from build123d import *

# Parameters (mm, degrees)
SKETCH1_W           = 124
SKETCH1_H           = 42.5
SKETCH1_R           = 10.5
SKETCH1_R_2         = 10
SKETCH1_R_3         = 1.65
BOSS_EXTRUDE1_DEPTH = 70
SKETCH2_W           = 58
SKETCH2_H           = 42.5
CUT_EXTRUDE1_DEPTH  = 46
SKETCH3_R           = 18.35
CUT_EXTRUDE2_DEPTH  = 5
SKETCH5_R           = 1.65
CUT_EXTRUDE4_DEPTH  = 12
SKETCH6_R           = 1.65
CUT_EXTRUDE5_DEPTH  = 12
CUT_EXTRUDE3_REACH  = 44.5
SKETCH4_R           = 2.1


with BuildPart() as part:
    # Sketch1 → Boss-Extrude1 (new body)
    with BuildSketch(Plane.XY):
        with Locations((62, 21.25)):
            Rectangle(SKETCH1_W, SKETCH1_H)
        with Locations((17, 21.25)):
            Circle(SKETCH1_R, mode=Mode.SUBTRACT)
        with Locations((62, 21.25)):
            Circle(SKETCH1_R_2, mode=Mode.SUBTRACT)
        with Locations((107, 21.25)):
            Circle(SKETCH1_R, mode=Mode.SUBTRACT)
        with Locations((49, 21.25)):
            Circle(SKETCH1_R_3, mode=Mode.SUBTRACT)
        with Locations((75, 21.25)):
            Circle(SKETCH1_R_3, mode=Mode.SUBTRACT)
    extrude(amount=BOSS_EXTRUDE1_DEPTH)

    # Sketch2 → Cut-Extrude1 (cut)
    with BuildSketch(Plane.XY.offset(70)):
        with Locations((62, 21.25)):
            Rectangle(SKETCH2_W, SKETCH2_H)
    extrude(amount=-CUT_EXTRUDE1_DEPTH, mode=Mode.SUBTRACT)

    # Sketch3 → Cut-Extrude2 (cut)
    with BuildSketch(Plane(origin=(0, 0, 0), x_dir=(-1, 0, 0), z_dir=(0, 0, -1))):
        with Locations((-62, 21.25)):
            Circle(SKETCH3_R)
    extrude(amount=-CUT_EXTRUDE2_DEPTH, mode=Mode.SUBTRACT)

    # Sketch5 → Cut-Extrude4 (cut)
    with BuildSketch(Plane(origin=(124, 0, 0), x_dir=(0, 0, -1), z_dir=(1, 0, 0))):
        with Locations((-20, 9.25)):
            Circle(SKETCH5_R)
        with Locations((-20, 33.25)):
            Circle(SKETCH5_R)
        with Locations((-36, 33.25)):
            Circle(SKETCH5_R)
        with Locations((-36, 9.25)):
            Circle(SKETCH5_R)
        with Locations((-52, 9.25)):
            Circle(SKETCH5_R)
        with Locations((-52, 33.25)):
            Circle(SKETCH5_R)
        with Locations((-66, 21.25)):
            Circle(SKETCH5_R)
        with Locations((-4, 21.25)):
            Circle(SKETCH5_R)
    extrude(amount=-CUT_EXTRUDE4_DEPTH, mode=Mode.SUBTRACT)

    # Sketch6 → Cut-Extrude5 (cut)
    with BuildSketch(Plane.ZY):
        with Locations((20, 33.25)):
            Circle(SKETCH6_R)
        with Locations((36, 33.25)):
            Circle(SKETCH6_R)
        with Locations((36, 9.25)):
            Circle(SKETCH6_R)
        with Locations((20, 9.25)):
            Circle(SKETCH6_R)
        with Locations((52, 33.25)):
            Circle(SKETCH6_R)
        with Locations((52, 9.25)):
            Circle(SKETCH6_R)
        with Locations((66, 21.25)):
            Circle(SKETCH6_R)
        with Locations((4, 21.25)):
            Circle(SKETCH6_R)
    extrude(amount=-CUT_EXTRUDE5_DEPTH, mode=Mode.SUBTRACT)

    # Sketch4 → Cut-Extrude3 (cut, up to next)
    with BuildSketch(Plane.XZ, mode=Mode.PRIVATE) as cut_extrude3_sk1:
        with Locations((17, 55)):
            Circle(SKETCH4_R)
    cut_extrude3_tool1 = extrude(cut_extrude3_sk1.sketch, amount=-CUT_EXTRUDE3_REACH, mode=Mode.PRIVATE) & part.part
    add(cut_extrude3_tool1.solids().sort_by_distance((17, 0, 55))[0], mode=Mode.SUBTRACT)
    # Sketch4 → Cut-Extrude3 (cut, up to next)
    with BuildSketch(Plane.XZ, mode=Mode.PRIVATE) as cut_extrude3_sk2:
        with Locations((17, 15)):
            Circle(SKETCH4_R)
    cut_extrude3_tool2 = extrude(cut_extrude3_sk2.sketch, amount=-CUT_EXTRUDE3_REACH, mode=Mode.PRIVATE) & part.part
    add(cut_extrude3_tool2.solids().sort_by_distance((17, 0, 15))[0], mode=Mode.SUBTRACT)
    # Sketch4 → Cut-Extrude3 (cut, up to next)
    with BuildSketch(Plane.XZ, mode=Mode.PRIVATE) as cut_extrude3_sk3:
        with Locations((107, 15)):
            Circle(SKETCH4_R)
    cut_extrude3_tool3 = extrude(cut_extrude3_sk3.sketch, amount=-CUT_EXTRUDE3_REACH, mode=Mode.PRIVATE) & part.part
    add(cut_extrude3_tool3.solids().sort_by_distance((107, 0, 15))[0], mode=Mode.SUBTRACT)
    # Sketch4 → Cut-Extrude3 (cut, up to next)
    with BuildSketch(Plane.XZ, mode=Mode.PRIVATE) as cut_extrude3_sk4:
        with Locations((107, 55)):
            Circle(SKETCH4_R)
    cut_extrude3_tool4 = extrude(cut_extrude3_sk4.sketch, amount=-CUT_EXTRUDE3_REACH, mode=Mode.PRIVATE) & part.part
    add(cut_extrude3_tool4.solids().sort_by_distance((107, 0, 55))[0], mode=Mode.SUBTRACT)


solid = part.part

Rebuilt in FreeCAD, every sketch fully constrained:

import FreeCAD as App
import Part
import Sketcher
from FreeCAD import Vector

doc = App.newDocument("Part")
body = doc.addObject("PartDesign::Body", "Body")

sketch1 = body.newObject("Sketcher::SketchObject", "Sketch")
sketch1.AttachmentSupport = (doc.getObject("XY_Plane"), [""])
sketch1.MapMode = "FlatFace"
sketch1.addGeometry([
    Part.LineSegment(Vector(0, 42.5, 0), Vector(0, 0, 0)),
    Part.LineSegment(Vector(0, 0, 0), Vector(124, 0, 0)),
    Part.LineSegment(Vector(124, 0, 0), Vector(124, 42.5, 0)),
    Part.LineSegment(Vector(124, 42.5, 0), Vector(0, 42.5, 0)),
    Part.Circle(Vector(17, 21.2, 0), Vector(0, 0, 1), 10.5),
    Part.Circle(Vector(49, 21.2, 0), Vector(0, 0, 1), 1.6),
    Part.Circle(Vector(62, 21.2, 0), Vector(0, 0, 1), 10),
    Part.Circle(Vector(75, 21.2, 0), Vector(0, 0, 1), 1.6),
    Part.Circle(Vector(107, 21.2, 0), Vector(0, 0, 1), 10.5),
], False)
sketch1.addConstraint([
    Sketcher.Constraint("Coincident", 0, 2, 1, 1),
    Sketcher.Constraint("Coincident", 1, 2, 2, 1),
    Sketcher.Constraint("Coincident", 2, 2, 3, 1),
    Sketcher.Constraint("Coincident", 3, 2, 0, 1),
    Sketcher.Constraint("Vertical", 0),
    Sketcher.Constraint("Horizontal", 1),
    Sketcher.Constraint("Vertical", 2),
    Sketcher.Constraint("Horizontal", 3),
    Sketcher.Constraint("Coincident", 0, 2, -1, 1),
    Sketcher.Constraint("Equal", 5, 7),
    Sketcher.Constraint("Equal", 4, 8),
    Sketcher.Constraint("Horizontal", 4, 3, 5, 3),
    Sketcher.Constraint("Horizontal", 5, 3, 6, 3),
    Sketcher.Constraint("Horizontal", 6, 3, 7, 3),
    Sketcher.Constraint("Horizontal", 7, 3, 8, 3),
    Sketcher.Constraint("Diameter", 4, 21.0),
    Sketcher.Constraint("Diameter", 6, 20.0),
    Sketcher.Constraint("Diameter", 5, 3.3),
    Sketcher.Constraint("DistanceX", 1, 1, 1, 2, 124.0),
    Sketcher.Constraint("DistanceY", 0, 2, 0, 1, 42.5),
    Sketcher.Constraint("DistanceX", -1, 1, 4, 3, 17.0),
    Sketcher.Constraint("DistanceX", -1, 1, 5, 3, 49.0),
    Sketcher.Constraint("DistanceX", -1, 1, 6, 3, 62.0),
    Sketcher.Constraint("DistanceX", -1, 1, 7, 3, 75.0),
    Sketcher.Constraint("DistanceX", -1, 1, 8, 3, 107.0),
    Sketcher.Constraint("DistanceY", -1, 1, 4, 3, 21.25),
])
pad1 = body.newObject("PartDesign::Pad", "Pad")
pad1.Profile = sketch1
pad1.Length = 70

sketch2 = body.newObject("Sketcher::SketchObject", "Sketch001")
sketch2.AttachmentSupport = (doc.getObject("XY_Plane"), [""])
sketch2.MapMode = "FlatFace"
sketch2.AttachmentOffset = App.Placement(Vector(0, 0, 70), App.Rotation())
sketch2.addGeometry([
    Part.LineSegment(Vector(33, 42, 0), Vector(33, 0, 0)),
    Part.LineSegment(Vector(33, 0, 0), Vector(91, 0, 0)),
    Part.LineSegment(Vector(91, 0, 0), Vector(91, 42, 0)),
    Part.LineSegment(Vector(91, 42, 0), Vector(33, 42, 0)),
], False)
sketch2.addConstraint([
    Sketcher.Constraint("Coincident", 0, 2, 1, 1),
    Sketcher.Constraint("Coincident", 1, 2, 2, 1),
    Sketcher.Constraint("Coincident", 2, 2, 3, 1),
    Sketcher.Constraint("Coincident", 3, 2, 0, 1),
    Sketcher.Constraint("Vertical", 0),
    Sketcher.Constraint("Horizontal", 1),
    Sketcher.Constraint("Vertical", 2),
    Sketcher.Constraint("Horizontal", 3),
    Sketcher.Constraint("PointOnObject", 0, 2, -1),
    Sketcher.Constraint("DistanceX", 1, 1, 1, 2, 58.0),
    Sketcher.Constraint("DistanceY", 0, 2, 0, 1, 42.5),
    Sketcher.Constraint("DistanceX", -1, 1, 0, 2, 33.0),
])
pocket1 = body.newObject("PartDesign::Pocket", "Pocket")
pocket1.Profile = sketch2
pocket1.Length = 46

sketch3 = body.newObject("Sketcher::SketchObject", "Sketch002")
sketch3.AttachmentSupport = (doc.getObject("XY_Plane"), [""])
sketch3.MapMode = "FlatFace"
sketch3.addGeometry(Part.Circle(Vector(62, 21, 0), Vector(0, 0, 1), 18), False)
sketch3.addConstraint([
    Sketcher.Constraint("Diameter", 0, 36.7),
    Sketcher.Constraint("DistanceX", -1, 1, 0, 3, 62.0),
    Sketcher.Constraint("DistanceY", -1, 1, 0, 3, 21.25),
])
pocket2 = body.newObject("PartDesign::Pocket", "Pocket001")
pocket2.Profile = sketch3
pocket2.Length = 5
pocket2.Reversed = True

sketch4 = body.newObject("Sketcher::SketchObject", "Sketch003")
sketch4.AttachmentSupport = (doc.getObject("YZ_Plane"), [""])
sketch4.MapMode = "FlatFace"
sketch4.AttachmentOffset = App.Placement(Vector(0, 0, 124), App.Rotation())
sketch4.addGeometry([
    Part.Circle(Vector(9.2, 20, 0), Vector(0, 0, 1), 1.6),
    Part.Circle(Vector(33.2, 20, 0), Vector(0, 0, 1), 1.6),
    Part.Circle(Vector(33.2, 36, 0), Vector(0, 0, 1), 1.6),
    Part.Circle(Vector(9.2, 36, 0), Vector(0, 0, 1), 1.6),
    Part.Circle(Vector(9.2, 52, 0), Vector(0, 0, 1), 1.6),
    Part.Circle(Vector(33.2, 52, 0), Vector(0, 0, 1), 1.6),
    Part.Circle(Vector(21.2, 66, 0), Vector(0, 0, 1), 1.6),
    Part.Circle(Vector(21.2, 4, 0), Vector(0, 0, 1), 1.6),
], False)
sketch4.addConstraint([
    Sketcher.Constraint("Equal", 0, 1),
    Sketcher.Constraint("Equal", 1, 2),
    Sketcher.Constraint("Equal", 2, 3),
    Sketcher.Constraint("Equal", 3, 4),
    Sketcher.Constraint("Equal", 4, 5),
    Sketcher.Constraint("Equal", 5, 6),
    Sketcher.Constraint("Equal", 6, 7),
    Sketcher.Constraint("Horizontal", 0, 3, 1, 3),
    Sketcher.Constraint("Horizontal", 2, 3, 3, 3),
    Sketcher.Constraint("Horizontal", 4, 3, 5, 3),
    Sketcher.Constraint("Vertical", 1, 3, 2, 3),
    Sketcher.Constraint("Vertical", 0, 3, 3, 3),
    Sketcher.Constraint("Vertical", 3, 3, 4, 3),
    Sketcher.Constraint("Vertical", 2, 3, 5, 3),
    Sketcher.Constraint("Vertical", 6, 3, 7, 3),
    Sketcher.Constraint("Diameter", 0, 3.3),
    Sketcher.Constraint("DistanceY", -1, 1, 0, 3, 20.0),
    Sketcher.Constraint("DistanceY", -1, 1, 2, 3, 36.0),
    Sketcher.Constraint("DistanceY", -1, 1, 4, 3, 52.0),
    Sketcher.Constraint("DistanceY", -1, 1, 6, 3, 66.0),
    Sketcher.Constraint("DistanceY", -1, 1, 7, 3, 4.0),
    Sketcher.Constraint("DistanceX", 0, 3, 1, 3, 24.0),
    Sketcher.Constraint("DistanceX", 4, 3, 6, 3, 12.0),
    Sketcher.Constraint("DistanceX", -1, 1, 0, 3, 9.25),
])
pocket3 = body.newObject("PartDesign::Pocket", "Pocket002")
pocket3.Profile = sketch4
pocket3.Length = 12

sketch5 = body.newObject("Sketcher::SketchObject", "Sketch004")
sketch5.AttachmentSupport = (doc.getObject("YZ_Plane"), [""])
sketch5.MapMode = "FlatFace"
sketch5.addGeometry([
    Part.Circle(Vector(33.2, 20, 0), Vector(0, 0, 1), 1.6),
    Part.Circle(Vector(33.2, 36, 0), Vector(0, 0, 1), 1.6),
    Part.Circle(Vector(9.2, 36, 0), Vector(0, 0, 1), 1.6),
    Part.Circle(Vector(9.2, 20, 0), Vector(0, 0, 1), 1.6),
    Part.Circle(Vector(33.2, 52, 0), Vector(0, 0, 1), 1.6),
    Part.Circle(Vector(9.2, 52, 0), Vector(0, 0, 1), 1.6),
    Part.Circle(Vector(21.2, 66, 0), Vector(0, 0, 1), 1.6),
    Part.Circle(Vector(21.2, 4, 0), Vector(0, 0, 1), 1.6),
], False)
sketch5.addConstraint([
    Sketcher.Constraint("Equal", 0, 1),
    Sketcher.Constraint("Equal", 1, 2),
    Sketcher.Constraint("Equal", 2, 3),
    Sketcher.Constraint("Equal", 3, 4),
    Sketcher.Constraint("Equal", 4, 5),
    Sketcher.Constraint("Equal", 5, 6),
    Sketcher.Constraint("Equal", 6, 7),
    Sketcher.Constraint("Horizontal", 1, 3, 2, 3),
    Sketcher.Constraint("Horizontal", 0, 3, 3, 3),
    Sketcher.Constraint("Horizontal", 4, 3, 5, 3),
    Sketcher.Constraint("Vertical", 0, 3, 1, 3),
    Sketcher.Constraint("Vertical", 2, 3, 3, 3),
    Sketcher.Constraint("Vertical", 1, 3, 4, 3),
    Sketcher.Constraint("Vertical", 3, 3, 5, 3),
    Sketcher.Constraint("Vertical", 6, 3, 7, 3),
    Sketcher.Constraint("Diameter", 0, 3.3),
    Sketcher.Constraint("DistanceY", -1, 1, 0, 3, 20.0),
    Sketcher.Constraint("DistanceY", -1, 1, 1, 3, 36.0),
    Sketcher.Constraint("DistanceY", -1, 1, 4, 3, 52.0),
    Sketcher.Constraint("DistanceY", -1, 1, 6, 3, 66.0),
    Sketcher.Constraint("DistanceY", -1, 1, 7, 3, 4.0),
    Sketcher.Constraint("DistanceX", 2, 3, 1, 3, 24.0),
    Sketcher.Constraint("DistanceX", 6, 3, 4, 3, 12.0),
    Sketcher.Constraint("DistanceX", -1, 1, 0, 3, 33.25),
])
pocket4 = body.newObject("PartDesign::Pocket", "Pocket003")
pocket4.Profile = sketch5
pocket4.Length = 12
pocket4.Reversed = True

sketch6 = body.newObject("Sketcher::SketchObject", "Sketch005")
sketch6.AttachmentSupport = (doc.getObject("XZ_Plane"), [""])
sketch6.MapMode = "FlatFace"
sketch6.addGeometry(Part.Circle(Vector(17, 55, 0), Vector(0, 0, 1), 2.1), False)
sketch6.addConstraint([
    Sketcher.Constraint("Diameter", 0, 4.2),
    Sketcher.Constraint("DistanceX", -1, 1, 0, 3, 17.0),
    Sketcher.Constraint("DistanceY", -1, 1, 0, 3, 55.0),
])
pocket5 = body.newObject("PartDesign::Pocket", "Pocket004")
pocket5.Profile = sketch6
pocket5.Length = 10.962143

sketch7 = body.newObject("Sketcher::SketchObject", "Sketch006")
sketch7.AttachmentSupport = (doc.getObject("XZ_Plane"), [""])
sketch7.MapMode = "FlatFace"
sketch7.addGeometry(Part.Circle(Vector(17, 15, 0), Vector(0, 0, 1), 2.1), False)
sketch7.addConstraint([
    Sketcher.Constraint("Diameter", 0, 4.2),
    Sketcher.Constraint("DistanceX", -1, 1, 0, 3, 17.0),
    Sketcher.Constraint("DistanceY", -1, 1, 0, 3, 15.0),
])
pocket6 = body.newObject("PartDesign::Pocket", "Pocket005")
pocket6.Profile = sketch7
pocket6.Length = 10.962143

sketch8 = body.newObject("Sketcher::SketchObject", "Sketch007")
sketch8.AttachmentSupport = (doc.getObject("XZ_Plane"), [""])
sketch8.MapMode = "FlatFace"
sketch8.addGeometry(Part.Circle(Vector(107, 15, 0), Vector(0, 0, 1), 2.1), False)
sketch8.addConstraint([
    Sketcher.Constraint("Diameter", 0, 4.2),
    Sketcher.Constraint("DistanceX", -1, 1, 0, 3, 107.0),
    Sketcher.Constraint("DistanceY", -1, 1, 0, 3, 15.0),
])
pocket7 = body.newObject("PartDesign::Pocket", "Pocket006")
pocket7.Profile = sketch8
pocket7.Length = 10.962143

sketch9 = body.newObject("Sketcher::SketchObject", "Sketch008")
sketch9.AttachmentSupport = (doc.getObject("XZ_Plane"), [""])
sketch9.MapMode = "FlatFace"
sketch9.addGeometry(Part.Circle(Vector(107, 55, 0), Vector(0, 0, 1), 2.1), False)
sketch9.addConstraint([
    Sketcher.Constraint("Diameter", 0, 4.2),
    Sketcher.Constraint("DistanceX", -1, 1, 0, 3, 107.0),
    Sketcher.Constraint("DistanceY", -1, 1, 0, 3, 55.0),
])
pocket8 = body.newObject("PartDesign::Pocket", "Pocket007")
pocket8.Profile = sketch9
pocket8.Length = 10.962143

doc.recompute()
